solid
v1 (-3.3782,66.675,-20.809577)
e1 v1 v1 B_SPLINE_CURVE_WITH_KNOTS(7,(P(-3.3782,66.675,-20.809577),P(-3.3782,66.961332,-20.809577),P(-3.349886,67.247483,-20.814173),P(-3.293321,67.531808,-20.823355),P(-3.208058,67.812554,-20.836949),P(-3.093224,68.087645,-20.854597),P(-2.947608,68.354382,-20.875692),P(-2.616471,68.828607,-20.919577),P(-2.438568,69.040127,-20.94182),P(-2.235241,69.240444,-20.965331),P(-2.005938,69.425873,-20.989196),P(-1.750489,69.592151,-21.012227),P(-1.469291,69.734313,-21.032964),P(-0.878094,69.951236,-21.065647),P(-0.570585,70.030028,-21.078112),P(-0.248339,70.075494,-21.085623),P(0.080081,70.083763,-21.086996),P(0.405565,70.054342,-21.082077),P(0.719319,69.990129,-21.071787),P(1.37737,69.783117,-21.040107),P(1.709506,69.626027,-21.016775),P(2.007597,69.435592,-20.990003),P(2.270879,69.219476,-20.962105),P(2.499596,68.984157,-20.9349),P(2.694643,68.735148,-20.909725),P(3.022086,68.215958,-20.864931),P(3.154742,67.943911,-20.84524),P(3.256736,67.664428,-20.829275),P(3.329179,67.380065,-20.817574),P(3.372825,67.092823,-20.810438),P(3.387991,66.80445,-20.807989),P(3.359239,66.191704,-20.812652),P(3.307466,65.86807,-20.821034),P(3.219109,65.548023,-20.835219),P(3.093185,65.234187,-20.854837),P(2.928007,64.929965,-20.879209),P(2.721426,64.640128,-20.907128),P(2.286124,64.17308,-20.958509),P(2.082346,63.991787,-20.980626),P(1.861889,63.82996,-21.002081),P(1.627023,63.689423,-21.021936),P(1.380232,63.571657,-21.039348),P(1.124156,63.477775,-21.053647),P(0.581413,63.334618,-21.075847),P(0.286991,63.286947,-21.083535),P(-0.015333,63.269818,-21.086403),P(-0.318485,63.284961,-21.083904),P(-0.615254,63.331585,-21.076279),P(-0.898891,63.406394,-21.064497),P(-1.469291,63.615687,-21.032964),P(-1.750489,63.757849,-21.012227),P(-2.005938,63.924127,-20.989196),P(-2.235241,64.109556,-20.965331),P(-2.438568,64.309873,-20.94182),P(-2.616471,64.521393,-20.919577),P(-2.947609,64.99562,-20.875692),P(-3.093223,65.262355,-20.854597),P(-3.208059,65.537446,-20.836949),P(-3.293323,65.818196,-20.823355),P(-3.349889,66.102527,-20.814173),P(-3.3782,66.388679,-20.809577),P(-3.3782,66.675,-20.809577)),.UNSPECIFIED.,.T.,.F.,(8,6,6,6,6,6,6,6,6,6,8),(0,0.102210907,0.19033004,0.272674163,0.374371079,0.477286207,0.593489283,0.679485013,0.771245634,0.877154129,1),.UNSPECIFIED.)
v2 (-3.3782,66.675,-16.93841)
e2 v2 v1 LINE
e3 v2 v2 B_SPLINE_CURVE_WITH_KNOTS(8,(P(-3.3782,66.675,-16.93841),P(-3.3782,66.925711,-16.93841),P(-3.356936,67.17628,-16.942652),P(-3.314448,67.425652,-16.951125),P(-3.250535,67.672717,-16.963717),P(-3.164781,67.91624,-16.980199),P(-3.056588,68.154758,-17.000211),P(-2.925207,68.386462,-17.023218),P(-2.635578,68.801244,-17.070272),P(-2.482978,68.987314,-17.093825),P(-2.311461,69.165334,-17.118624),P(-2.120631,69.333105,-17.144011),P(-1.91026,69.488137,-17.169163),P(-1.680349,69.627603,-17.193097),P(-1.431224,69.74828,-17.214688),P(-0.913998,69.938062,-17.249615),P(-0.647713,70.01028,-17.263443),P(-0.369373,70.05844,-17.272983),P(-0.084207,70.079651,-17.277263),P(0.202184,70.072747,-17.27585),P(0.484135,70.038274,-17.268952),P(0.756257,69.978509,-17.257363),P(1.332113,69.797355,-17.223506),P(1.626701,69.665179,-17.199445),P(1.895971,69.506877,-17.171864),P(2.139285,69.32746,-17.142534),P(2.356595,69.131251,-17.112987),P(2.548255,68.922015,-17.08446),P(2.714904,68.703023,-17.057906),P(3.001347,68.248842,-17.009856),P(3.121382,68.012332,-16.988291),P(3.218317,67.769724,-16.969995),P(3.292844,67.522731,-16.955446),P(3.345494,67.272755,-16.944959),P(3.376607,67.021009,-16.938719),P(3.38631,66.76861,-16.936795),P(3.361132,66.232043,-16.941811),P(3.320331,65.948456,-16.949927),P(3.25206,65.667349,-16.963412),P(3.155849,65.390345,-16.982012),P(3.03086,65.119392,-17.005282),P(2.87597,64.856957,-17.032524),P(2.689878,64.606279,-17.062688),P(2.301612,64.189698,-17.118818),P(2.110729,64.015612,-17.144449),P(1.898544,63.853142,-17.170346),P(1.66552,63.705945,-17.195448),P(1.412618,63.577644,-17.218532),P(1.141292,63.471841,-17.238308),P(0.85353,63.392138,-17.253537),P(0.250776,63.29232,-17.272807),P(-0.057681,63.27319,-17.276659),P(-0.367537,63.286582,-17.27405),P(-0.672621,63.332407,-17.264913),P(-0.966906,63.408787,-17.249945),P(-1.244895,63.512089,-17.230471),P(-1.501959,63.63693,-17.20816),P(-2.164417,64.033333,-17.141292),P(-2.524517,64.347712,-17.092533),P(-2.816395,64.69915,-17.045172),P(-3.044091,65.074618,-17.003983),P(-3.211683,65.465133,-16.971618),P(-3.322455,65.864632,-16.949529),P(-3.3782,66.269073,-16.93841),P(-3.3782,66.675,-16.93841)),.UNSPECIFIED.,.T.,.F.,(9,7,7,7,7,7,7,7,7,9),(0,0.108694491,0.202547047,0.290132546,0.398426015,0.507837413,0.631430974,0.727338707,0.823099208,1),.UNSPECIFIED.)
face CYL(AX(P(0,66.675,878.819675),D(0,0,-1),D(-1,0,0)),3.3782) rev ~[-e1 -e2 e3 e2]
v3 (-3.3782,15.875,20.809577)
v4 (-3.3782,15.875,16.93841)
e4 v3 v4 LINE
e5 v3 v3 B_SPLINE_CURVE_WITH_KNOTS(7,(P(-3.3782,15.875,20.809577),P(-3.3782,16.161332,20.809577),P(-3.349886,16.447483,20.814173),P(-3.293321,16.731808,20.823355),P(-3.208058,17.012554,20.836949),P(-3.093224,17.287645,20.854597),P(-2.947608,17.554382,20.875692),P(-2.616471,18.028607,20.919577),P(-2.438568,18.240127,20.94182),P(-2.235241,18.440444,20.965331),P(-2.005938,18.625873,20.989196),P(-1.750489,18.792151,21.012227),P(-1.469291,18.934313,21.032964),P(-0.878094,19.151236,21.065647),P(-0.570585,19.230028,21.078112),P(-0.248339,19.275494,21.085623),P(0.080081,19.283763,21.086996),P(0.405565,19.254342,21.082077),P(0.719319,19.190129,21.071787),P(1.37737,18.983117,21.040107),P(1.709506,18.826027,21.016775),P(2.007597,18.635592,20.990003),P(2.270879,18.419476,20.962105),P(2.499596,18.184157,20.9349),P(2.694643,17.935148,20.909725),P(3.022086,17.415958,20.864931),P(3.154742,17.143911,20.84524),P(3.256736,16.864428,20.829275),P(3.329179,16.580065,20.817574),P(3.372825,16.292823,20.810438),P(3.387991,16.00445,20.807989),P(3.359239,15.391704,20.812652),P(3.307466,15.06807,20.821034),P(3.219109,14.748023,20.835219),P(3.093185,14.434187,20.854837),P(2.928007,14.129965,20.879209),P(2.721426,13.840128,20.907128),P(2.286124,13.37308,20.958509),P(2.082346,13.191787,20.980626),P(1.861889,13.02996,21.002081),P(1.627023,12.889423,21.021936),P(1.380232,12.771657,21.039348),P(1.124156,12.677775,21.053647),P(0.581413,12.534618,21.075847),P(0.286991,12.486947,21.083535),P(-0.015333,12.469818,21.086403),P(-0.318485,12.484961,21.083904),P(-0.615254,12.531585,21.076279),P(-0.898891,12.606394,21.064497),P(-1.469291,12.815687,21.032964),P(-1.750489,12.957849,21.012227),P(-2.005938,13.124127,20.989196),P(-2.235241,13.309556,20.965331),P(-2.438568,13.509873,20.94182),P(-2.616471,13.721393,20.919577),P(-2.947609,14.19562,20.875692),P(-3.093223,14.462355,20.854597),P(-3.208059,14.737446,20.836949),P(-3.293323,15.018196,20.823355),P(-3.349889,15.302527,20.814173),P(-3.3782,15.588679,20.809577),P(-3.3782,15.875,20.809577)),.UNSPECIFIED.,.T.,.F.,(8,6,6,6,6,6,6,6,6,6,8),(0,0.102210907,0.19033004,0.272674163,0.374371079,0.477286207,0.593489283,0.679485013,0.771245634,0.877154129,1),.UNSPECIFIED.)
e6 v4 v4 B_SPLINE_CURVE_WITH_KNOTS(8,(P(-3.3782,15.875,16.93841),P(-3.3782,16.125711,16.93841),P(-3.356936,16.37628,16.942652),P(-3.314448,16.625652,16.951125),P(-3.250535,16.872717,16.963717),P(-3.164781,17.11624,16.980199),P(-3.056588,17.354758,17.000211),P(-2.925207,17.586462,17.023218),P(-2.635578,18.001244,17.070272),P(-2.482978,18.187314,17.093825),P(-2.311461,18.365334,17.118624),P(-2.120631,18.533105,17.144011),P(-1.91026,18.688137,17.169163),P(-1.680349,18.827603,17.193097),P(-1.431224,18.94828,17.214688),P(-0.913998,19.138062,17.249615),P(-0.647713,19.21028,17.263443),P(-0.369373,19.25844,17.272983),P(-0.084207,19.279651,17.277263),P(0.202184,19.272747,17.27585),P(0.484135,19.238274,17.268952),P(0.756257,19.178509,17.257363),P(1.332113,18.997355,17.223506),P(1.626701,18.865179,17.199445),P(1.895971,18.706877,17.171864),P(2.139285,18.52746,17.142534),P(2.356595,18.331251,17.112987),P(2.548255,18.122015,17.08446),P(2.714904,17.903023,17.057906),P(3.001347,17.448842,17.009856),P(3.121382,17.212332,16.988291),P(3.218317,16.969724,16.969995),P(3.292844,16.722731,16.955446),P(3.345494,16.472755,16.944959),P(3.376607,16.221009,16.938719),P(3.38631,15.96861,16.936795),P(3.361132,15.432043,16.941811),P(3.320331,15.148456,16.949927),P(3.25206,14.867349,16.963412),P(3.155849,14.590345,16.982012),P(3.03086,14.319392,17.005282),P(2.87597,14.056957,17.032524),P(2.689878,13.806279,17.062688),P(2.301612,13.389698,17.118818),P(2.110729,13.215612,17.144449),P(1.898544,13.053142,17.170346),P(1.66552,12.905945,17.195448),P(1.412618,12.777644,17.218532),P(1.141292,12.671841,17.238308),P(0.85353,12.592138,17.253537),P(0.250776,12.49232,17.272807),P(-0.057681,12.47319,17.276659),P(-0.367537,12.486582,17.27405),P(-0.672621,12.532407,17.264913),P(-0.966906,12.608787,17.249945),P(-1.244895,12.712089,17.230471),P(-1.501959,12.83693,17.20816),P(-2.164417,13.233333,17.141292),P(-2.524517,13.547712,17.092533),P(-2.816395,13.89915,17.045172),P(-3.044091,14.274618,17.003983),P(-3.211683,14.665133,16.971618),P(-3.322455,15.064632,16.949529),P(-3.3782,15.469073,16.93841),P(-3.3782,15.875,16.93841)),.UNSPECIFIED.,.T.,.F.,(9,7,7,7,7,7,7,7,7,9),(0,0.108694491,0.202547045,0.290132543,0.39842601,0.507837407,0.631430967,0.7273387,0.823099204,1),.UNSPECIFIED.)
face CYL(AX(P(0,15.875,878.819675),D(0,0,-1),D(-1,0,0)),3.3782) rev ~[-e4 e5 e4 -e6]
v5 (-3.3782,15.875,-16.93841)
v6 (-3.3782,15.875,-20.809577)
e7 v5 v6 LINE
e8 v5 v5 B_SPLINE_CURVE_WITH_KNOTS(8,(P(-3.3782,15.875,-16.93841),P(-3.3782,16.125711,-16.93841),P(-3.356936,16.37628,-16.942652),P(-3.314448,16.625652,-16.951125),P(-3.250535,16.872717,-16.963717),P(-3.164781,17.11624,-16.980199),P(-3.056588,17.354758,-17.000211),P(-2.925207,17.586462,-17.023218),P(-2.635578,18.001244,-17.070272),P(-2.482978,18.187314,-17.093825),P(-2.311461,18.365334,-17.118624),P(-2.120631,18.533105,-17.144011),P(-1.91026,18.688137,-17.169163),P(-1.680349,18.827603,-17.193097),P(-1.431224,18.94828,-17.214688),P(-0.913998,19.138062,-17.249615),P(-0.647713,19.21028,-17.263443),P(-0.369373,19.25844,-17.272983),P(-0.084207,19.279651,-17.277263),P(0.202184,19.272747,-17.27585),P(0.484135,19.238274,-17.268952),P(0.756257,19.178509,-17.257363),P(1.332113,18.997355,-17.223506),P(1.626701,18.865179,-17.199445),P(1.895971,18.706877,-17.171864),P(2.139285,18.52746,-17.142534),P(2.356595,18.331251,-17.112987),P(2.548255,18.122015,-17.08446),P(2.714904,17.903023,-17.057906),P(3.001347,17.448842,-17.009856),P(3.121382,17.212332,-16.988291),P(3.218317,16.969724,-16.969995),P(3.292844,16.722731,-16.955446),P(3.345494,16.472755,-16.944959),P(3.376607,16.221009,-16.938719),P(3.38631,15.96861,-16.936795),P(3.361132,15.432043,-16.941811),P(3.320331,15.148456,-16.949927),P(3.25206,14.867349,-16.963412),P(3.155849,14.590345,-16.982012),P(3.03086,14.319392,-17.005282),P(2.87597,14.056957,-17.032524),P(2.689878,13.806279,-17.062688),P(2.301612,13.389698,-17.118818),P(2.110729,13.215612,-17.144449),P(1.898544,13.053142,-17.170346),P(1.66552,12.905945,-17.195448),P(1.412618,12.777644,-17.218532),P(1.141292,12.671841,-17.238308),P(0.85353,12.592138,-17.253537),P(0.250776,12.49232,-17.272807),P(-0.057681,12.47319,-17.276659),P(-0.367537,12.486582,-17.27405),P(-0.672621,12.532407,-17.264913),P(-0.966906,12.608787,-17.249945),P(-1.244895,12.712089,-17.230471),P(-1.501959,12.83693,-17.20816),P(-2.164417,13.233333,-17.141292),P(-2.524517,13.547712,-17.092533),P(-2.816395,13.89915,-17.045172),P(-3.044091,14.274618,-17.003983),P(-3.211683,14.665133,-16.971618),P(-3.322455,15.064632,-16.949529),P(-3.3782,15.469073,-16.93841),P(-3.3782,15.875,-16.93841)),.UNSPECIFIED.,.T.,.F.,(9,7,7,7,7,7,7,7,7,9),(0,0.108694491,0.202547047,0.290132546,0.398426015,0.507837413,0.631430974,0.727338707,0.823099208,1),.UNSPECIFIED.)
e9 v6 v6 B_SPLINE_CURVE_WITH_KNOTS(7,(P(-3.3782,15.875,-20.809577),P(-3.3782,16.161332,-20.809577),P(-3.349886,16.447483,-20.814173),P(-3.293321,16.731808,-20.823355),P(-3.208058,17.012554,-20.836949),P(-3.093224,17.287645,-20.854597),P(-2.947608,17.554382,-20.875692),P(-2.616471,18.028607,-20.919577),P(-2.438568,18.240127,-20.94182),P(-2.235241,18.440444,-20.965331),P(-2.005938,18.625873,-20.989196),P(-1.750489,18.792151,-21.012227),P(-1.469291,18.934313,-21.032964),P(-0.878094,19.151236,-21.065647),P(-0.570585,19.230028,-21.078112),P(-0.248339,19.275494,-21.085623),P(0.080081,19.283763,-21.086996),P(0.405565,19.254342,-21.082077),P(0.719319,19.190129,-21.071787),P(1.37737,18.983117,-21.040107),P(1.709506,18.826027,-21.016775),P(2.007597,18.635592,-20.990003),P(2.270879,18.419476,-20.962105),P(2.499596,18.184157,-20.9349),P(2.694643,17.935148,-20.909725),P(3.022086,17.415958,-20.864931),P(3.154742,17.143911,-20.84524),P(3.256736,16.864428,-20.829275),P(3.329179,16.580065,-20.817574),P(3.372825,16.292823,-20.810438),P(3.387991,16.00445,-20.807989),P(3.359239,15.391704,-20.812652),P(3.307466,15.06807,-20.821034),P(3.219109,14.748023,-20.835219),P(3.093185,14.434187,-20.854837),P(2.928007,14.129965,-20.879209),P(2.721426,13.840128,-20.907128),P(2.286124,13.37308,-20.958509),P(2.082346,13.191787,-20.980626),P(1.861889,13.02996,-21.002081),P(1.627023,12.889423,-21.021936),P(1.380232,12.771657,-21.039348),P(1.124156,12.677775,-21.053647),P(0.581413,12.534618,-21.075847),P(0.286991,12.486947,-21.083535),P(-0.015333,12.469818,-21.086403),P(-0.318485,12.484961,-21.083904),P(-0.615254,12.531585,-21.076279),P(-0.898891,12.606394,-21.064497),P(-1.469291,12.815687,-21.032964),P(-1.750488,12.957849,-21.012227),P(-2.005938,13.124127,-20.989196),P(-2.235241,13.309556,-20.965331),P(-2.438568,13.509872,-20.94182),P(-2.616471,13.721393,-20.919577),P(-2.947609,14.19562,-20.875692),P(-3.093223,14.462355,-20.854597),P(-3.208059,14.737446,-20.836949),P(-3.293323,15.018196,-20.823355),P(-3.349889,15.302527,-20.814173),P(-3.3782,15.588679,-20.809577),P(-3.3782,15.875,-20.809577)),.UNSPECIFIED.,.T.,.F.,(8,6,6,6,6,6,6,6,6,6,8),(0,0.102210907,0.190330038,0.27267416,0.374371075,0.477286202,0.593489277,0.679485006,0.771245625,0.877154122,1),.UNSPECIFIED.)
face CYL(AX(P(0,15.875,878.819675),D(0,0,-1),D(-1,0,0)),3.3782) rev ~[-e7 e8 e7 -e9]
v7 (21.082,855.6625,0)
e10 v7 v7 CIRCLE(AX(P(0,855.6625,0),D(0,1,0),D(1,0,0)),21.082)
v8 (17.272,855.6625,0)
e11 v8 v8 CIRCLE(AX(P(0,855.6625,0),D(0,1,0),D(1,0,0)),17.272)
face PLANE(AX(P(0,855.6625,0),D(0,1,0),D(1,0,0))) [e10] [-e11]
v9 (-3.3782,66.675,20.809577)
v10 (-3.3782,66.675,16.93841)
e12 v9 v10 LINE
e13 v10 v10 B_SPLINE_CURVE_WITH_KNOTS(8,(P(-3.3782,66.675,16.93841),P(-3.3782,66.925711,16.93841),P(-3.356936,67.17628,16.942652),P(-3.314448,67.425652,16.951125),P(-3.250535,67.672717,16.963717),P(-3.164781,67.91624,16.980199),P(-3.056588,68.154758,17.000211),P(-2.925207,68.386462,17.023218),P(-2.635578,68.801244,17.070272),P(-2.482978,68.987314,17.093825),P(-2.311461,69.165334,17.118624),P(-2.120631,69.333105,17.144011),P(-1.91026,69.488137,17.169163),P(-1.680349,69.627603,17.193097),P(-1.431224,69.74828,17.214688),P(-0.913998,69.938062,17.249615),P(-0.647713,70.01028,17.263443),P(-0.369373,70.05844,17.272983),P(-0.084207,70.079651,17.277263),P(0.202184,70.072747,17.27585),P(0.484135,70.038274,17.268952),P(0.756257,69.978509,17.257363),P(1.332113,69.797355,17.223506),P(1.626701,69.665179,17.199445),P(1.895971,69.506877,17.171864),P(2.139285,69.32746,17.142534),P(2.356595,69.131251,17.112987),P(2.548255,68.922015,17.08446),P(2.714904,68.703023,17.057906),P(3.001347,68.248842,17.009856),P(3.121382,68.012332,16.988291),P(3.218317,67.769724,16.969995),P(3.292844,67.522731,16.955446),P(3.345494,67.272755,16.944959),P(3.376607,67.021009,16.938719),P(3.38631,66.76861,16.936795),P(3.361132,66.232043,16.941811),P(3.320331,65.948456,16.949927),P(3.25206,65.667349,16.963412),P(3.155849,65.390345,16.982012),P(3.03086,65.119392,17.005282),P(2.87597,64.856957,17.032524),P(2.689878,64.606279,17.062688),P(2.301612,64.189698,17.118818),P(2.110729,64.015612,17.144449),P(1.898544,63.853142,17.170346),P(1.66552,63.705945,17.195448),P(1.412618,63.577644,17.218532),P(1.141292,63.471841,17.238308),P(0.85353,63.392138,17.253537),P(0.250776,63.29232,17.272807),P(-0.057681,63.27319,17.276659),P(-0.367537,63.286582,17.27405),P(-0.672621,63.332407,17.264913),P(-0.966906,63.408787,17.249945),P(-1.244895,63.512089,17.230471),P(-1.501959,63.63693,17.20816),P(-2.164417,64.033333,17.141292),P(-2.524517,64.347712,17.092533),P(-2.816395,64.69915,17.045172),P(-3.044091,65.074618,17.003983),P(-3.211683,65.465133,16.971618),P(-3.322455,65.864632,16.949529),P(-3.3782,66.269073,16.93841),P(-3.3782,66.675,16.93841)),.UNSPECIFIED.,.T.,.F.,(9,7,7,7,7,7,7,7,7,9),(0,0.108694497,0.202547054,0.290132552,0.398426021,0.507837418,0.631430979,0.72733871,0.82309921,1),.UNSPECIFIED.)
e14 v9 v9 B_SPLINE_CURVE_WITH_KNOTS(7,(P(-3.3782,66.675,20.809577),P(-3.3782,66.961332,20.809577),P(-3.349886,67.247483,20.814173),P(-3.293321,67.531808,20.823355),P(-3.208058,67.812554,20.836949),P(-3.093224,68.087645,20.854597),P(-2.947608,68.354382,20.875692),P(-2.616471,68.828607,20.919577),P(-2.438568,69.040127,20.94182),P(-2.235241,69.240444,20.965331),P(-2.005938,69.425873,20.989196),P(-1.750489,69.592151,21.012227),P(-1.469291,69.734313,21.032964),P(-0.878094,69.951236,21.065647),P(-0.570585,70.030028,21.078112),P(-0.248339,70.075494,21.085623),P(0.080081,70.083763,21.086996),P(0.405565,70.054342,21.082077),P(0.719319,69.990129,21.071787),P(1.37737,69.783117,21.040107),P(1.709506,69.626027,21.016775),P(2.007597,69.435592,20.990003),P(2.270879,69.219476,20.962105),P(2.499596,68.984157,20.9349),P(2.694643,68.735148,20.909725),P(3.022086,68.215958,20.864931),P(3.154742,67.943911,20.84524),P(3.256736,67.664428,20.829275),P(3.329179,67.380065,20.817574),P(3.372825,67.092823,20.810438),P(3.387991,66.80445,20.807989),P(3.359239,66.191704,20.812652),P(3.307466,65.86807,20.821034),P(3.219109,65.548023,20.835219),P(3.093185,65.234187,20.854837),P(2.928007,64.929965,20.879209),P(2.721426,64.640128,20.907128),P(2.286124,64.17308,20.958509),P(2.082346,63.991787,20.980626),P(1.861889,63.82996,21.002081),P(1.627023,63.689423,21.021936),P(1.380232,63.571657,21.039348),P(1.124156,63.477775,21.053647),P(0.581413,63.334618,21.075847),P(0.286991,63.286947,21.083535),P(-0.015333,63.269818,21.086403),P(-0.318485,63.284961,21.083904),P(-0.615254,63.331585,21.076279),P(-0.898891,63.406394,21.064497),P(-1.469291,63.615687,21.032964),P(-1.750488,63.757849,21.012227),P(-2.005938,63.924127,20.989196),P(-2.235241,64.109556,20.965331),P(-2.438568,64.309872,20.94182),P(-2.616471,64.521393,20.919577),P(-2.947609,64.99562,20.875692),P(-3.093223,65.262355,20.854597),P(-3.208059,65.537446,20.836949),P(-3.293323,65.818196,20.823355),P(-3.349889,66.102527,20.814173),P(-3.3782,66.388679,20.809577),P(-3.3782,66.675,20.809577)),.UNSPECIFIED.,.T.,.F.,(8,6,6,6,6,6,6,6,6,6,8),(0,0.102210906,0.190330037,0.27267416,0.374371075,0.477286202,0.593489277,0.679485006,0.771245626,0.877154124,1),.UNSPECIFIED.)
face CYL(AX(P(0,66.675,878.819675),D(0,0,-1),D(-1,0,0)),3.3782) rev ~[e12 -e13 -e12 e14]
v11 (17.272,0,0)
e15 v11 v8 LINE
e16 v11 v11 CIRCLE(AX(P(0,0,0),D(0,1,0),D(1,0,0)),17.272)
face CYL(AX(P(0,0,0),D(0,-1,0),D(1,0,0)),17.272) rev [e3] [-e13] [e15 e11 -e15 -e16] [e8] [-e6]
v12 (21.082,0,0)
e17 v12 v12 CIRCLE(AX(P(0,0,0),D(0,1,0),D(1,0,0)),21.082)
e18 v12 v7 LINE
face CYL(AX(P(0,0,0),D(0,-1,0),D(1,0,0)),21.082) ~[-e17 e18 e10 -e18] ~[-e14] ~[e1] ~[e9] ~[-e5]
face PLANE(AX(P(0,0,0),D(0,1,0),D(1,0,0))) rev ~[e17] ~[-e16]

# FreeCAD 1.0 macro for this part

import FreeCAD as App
import Part
import Sketcher
from FreeCAD import Vector
Q = App.Units.Quantity

doc = App.newDocument("Part")
body = doc.addObject("PartDesign::Body", "Body")

# Sketch on XZ plane
sketch1 = body.newObject("Sketcher::SketchObject", "Sketch")
sketch1.AttachmentSupport = (doc.getObject("XZ_Plane"), [""])
sketch1.MapMode = "FlatFace"
sketch1.addGeometry([
    Part.Circle(Vector(0, 0, 0), Vector(0, 0, 1), 21.082),
    Part.Circle(Vector(0, 0, 0), Vector(0, 0, 1), 17.272),
], False)
sketch1.addConstraint([
    Sketcher.Constraint("Coincident", 0, 3, -1, 1),
    Sketcher.Constraint("Coincident", 1, 3, -1, 1),
    Sketcher.Constraint("Diameter", 0, Q("1.66 in")),
    Sketcher.Constraint("Diameter", 1, Q("1.36 in")),
])
pad1 = body.newObject("PartDesign::Pad", "Pad")
pad1.Profile = sketch1
pad1.Length = Q("33.6875 in")
pad1.Reversed = True

# Sketch on XY plane
sketch2 = body.newObject("Sketcher::SketchObject", "Sketch001")
sketch2.AttachmentSupport = (doc.getObject("XY_Plane"), [""])
sketch2.MapMode = "FlatFace"
sketch2.AttachmentOffset = App.Placement(Vector(0, 0, 0.83 * 25.4), App.Rotation())
sketch2.addGeometry([
    Part.Circle(Vector(0, 15.875, 0), Vector(0, 0, 1), 3.3782),
    Part.Circle(Vector(0, 66.675, 0), Vector(0, 0, 1), 3.3782),
], False)
sketch2.addConstraint([
    Sketcher.Constraint("Equal", 0, 1),
    Sketcher.Constraint("PointOnObject", 0, 3, -2),
    Sketcher.Constraint("PointOnObject", 1, 3, -2),
    Sketcher.Constraint("Diameter", 0, Q("0.266 in")),
    Sketcher.Constraint("DistanceY", 0, 3, 1, 3, Q("2 in")),
    Sketcher.Constraint("DistanceY", -1, 1, 0, 3, Q("0.625 in")),
])
doc.recompute()
hole = body.newObject("PartDesign::Hole", "Hole")
hole.Profile = sketch2
hole.ThreadType = "None"
hole.Diameter = Q("0.266 in")
hole.DepthType = "ThroughAll"

doc.recompute()
